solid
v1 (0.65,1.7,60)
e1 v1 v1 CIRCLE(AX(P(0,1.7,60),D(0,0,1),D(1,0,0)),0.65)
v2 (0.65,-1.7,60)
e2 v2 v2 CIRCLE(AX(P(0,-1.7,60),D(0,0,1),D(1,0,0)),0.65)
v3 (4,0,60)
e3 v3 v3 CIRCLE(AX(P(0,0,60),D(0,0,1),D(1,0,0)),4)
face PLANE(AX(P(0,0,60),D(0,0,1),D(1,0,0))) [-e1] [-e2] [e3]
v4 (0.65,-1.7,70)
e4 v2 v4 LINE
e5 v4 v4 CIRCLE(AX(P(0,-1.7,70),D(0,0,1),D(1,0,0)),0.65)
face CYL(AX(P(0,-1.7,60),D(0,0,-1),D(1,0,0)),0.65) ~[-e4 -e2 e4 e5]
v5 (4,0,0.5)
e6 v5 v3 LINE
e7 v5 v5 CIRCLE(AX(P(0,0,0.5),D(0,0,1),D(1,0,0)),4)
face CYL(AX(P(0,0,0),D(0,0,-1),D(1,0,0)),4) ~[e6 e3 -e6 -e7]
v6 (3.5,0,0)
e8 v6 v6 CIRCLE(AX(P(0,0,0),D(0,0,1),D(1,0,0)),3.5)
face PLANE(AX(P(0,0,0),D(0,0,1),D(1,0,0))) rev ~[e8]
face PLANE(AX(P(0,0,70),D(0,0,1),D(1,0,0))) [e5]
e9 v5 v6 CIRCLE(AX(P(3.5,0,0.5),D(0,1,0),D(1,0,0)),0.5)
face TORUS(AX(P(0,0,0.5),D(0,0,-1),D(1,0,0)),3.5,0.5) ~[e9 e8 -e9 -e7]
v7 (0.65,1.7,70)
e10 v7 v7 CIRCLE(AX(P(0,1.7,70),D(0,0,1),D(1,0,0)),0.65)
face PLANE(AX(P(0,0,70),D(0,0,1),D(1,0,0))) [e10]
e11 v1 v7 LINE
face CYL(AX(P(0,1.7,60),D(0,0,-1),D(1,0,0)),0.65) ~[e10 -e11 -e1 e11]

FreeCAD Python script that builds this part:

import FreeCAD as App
import Part
import Sketcher
from FreeCAD import Vector
Q = App.Units.Quantity


def edges_at(feature, points):
    """Names of the edges that pass closest to the given points."""
    edges = feature.Shape.Edges
    near = lambda p: min(range(len(edges)), key=lambda i: edges[i].distToShape(Part.Vertex(*p))[0])
    return sorted({f"Edge{near(p) + 1}" for p in points})

doc = App.newDocument("Part")
body = doc.addObject("PartDesign::Body", "Body")

# Sketch on XY plane
sketch1 = body.newObject("Sketcher::SketchObject", "Sketch")
sketch1.AttachmentSupport = (doc.getObject("XY_Plane"), [""])
sketch1.MapMode = "FlatFace"
sketch1.addGeometry(Part.Circle(Vector(0, 0, 0), Vector(0, 0, 1), 4), False)
sketch1.addConstraint([
    Sketcher.Constraint("Coincident", 0, 3, -1, 1),
    Sketcher.Constraint("Diameter", 0, Q("8 mm")),
])
pad1 = body.newObject("PartDesign::Pad", "Pad")
pad1.Profile = sketch1
pad1.Length = 60
doc.recompute()

fillet = body.newObject("PartDesign::Fillet", "Fillet")
fillet.Base = (pad1, edges_at(pad1, [(-4, 0, 0)]))
fillet.Radius = 0.5

# Sketch on XY plane
sketch2 = body.newObject("Sketcher::SketchObject", "Sketch001")
sketch2.AttachmentSupport = (doc.getObject("XY_Plane"), [""])
sketch2.MapMode = "FlatFace"
sketch2.AttachmentOffset = App.Placement(Vector(0, 0, 60), App.Rotation())
sketch2.addGeometry([
    Part.Circle(Vector(0, 1.7, 0), Vector(0, 0, 1), 0.65),
    Part.Circle(Vector(0, -1.7, 0), Vector(0, 0, 1), 0.65),
], False)
sketch2.addConstraint([
    Sketcher.Constraint("Equal", 0, 1),
    Sketcher.Constraint("Symmetric", 0, 3, 1, 3, -1, 1),
    Sketcher.Constraint("PointOnObject", 0, 3, -2),
    Sketcher.Constraint("Diameter", 0, Q("1.3 mm")),
    Sketcher.Constraint("DistanceY", -1, 1, 0, 3, Q("1.7 mm")),
])
pad2 = body.newObject("PartDesign::Pad", "Pad001")
pad2.Profile = sketch2
pad2.Length = 10

doc.recompute()
